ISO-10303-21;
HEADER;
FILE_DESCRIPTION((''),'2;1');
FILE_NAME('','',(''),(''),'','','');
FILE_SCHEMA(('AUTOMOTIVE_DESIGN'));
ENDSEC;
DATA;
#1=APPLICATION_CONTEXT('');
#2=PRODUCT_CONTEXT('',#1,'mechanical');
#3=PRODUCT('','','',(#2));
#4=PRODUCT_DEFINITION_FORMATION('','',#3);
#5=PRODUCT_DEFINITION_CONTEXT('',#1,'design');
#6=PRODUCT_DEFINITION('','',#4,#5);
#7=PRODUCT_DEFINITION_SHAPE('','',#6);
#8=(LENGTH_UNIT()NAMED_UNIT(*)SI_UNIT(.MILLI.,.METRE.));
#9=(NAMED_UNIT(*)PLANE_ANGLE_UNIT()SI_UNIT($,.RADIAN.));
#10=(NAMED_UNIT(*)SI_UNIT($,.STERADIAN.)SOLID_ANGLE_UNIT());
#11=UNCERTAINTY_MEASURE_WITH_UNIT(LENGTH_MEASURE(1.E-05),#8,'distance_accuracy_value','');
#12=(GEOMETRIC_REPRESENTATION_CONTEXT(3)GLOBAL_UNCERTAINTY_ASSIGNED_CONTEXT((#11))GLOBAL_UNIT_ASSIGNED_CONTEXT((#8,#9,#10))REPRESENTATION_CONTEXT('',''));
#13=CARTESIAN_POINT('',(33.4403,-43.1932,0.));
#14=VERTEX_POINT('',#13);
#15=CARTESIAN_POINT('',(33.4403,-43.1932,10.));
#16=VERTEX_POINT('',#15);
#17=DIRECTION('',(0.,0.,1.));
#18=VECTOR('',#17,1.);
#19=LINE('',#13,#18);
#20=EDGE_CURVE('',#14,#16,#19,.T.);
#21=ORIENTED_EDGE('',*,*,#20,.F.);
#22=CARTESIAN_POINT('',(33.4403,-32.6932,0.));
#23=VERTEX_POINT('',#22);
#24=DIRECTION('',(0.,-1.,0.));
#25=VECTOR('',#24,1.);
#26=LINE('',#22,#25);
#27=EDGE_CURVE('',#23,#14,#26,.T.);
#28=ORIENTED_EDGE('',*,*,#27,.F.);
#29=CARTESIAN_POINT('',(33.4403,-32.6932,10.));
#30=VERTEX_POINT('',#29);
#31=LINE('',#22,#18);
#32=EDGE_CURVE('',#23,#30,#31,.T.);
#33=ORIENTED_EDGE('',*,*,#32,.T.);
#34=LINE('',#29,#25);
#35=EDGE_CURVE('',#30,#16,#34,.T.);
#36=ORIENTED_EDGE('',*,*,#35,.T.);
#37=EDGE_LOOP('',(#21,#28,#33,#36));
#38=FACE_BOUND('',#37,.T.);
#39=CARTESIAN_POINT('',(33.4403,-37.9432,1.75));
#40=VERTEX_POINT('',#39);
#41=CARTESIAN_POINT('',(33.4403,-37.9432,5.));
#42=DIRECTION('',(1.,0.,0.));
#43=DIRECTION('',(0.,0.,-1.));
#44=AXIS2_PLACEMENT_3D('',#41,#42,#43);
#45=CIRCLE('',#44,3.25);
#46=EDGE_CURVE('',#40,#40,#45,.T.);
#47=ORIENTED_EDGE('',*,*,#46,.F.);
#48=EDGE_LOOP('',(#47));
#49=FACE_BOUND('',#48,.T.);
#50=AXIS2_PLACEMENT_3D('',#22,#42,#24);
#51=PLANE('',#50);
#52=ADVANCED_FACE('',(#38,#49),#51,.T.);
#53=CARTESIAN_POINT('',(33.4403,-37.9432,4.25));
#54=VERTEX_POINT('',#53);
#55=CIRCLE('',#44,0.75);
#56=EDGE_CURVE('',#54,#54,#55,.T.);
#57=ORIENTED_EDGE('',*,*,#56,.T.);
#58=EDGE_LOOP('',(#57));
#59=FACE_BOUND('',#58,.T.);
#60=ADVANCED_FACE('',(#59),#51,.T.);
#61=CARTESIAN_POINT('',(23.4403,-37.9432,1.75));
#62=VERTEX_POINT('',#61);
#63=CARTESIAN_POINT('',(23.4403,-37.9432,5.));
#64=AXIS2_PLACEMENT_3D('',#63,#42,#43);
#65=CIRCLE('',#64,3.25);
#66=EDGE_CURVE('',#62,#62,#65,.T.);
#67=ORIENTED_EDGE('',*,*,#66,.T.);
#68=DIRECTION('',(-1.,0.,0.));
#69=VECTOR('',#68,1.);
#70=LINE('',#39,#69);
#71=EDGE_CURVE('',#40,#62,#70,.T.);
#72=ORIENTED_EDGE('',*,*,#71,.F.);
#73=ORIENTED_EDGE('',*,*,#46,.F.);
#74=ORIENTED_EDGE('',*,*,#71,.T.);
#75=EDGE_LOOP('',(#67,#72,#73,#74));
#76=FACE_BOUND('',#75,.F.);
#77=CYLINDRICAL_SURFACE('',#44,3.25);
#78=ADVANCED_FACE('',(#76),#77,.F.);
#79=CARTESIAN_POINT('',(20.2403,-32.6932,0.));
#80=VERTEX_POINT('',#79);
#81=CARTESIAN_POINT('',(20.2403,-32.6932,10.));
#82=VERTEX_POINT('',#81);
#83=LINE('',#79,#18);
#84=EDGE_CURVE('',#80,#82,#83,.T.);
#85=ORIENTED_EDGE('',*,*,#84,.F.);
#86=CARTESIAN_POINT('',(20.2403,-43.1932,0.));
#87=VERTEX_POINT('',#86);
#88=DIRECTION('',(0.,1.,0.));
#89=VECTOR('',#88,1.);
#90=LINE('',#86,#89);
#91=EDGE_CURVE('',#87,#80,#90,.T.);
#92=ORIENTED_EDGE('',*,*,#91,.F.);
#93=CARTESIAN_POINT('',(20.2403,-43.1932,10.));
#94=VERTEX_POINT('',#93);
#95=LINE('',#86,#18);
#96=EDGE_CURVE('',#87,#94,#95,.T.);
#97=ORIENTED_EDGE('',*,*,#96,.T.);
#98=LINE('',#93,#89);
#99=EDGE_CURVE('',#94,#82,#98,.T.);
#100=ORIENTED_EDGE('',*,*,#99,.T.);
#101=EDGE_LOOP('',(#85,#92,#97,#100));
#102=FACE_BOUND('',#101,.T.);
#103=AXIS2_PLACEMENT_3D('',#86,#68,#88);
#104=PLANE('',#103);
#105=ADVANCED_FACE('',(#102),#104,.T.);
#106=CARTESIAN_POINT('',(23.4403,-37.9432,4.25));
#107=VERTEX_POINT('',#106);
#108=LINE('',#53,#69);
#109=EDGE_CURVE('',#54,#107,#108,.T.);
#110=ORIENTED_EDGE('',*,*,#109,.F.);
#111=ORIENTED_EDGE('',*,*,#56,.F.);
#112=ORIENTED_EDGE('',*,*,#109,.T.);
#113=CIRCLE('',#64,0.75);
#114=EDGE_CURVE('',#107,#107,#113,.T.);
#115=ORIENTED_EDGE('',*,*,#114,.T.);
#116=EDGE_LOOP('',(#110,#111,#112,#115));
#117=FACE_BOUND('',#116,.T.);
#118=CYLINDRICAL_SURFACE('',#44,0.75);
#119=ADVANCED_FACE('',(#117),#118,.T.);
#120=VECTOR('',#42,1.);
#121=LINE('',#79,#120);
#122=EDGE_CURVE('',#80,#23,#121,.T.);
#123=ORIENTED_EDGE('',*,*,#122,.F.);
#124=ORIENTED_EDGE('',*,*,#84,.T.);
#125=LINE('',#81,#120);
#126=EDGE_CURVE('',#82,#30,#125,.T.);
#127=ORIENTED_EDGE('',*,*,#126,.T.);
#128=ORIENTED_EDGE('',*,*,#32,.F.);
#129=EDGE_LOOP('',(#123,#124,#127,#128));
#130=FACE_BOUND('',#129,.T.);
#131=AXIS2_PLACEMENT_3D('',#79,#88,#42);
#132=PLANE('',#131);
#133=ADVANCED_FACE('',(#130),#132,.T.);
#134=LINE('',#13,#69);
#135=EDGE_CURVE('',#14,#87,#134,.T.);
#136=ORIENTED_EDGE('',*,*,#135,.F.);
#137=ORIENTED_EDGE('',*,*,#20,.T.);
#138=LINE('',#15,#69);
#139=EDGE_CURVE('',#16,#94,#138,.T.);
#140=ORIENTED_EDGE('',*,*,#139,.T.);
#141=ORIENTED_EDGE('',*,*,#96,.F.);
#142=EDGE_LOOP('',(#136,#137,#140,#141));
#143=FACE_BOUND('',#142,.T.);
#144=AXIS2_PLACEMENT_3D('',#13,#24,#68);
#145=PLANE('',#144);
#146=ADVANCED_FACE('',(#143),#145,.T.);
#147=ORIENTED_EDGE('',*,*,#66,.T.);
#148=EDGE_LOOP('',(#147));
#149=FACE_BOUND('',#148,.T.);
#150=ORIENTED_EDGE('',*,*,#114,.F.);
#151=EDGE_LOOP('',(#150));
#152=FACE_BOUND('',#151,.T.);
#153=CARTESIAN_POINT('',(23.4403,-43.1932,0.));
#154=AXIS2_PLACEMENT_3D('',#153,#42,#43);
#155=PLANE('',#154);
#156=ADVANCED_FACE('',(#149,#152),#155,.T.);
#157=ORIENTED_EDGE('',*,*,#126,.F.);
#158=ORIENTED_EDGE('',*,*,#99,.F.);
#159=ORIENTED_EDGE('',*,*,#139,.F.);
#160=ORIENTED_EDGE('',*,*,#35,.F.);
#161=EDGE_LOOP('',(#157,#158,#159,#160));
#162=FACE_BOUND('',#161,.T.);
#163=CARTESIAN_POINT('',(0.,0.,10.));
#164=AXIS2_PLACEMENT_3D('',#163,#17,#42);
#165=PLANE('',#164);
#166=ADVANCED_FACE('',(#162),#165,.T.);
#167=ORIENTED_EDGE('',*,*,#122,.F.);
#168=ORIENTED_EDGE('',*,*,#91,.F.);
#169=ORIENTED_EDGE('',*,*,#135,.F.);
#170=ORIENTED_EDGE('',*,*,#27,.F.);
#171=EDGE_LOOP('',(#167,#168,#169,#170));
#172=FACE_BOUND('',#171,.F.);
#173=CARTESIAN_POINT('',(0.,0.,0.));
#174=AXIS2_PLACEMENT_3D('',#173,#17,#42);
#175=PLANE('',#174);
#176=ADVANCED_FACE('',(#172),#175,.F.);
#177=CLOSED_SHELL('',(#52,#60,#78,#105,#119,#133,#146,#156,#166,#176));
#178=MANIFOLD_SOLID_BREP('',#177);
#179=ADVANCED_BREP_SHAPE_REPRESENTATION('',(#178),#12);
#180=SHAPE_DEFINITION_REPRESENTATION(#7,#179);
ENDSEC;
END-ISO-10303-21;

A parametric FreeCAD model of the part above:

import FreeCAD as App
import Part
import Sketcher
from FreeCAD import Vector

doc = App.newDocument("Part")
body = doc.addObject("PartDesign::Body", "Body")

sketch1 = doc.addObject("Sketcher::SketchObject", "Sketch")
body.addObject(sketch1)
sketch1.AttachmentSupport = (doc.XY_Plane, [""])
sketch1.MapMode = "FlatFace"
sketch1.addGeometry([
    Part.LineSegment(Vector(33, -33, 0), Vector(20, -33, 0)),
    Part.LineSegment(Vector(20, -33, 0), Vector(20, -43, 0)),
    Part.LineSegment(Vector(20, -43, 0), Vector(33, -43, 0)),
    Part.LineSegment(Vector(33, -43, 0), Vector(33, -33, 0)),
], False)
sketch1.addConstraint([
    Sketcher.Constraint("Coincident", 0, 2, 1, 1),
    Sketcher.Constraint("Coincident", 1, 2, 2, 1),
    Sketcher.Constraint("Coincident", 2, 2, 3, 1),
    Sketcher.Constraint("Coincident", 3, 2, 0, 1),
    Sketcher.Constraint("Horizontal", 0),
    Sketcher.Constraint("Vertical", 1),
    Sketcher.Constraint("Horizontal", 2),
    Sketcher.Constraint("Vertical", 3),
    Sketcher.Constraint("DistanceX", 0, 2, 0, 1, 13.2),
    Sketcher.Constraint("DistanceY", 1, 2, 1, 1, 10.5),
    Sketcher.Constraint("DistanceX", -1, 1, 0, 2, 20.2403),
    Sketcher.Constraint("DistanceY", 0, 2, -1, 1, 32.6932),
])
pad1 = doc.addObject("PartDesign::Pad", "Pad")
body.addObject(pad1)
pad1.Profile = sketch1
pad1.Length = 10

sketch2 = doc.addObject("Sketcher::SketchObject", "Sketch001")
body.addObject(sketch2)
sketch2.AttachmentSupport = (doc.YZ_Plane, [""])
sketch2.MapMode = "FlatFace"
sketch2.AttachmentOffset = App.Placement(Vector(0, 0, 33.4403), App.Rotation())
sketch2.addGeometry([
    Part.Circle(Vector(-37.9, 5, 0), Vector(0, 0, 1), 3.2),
    Part.Circle(Vector(-37.9, 5, 0), Vector(0, 0, 1), 0.8),
], False)
sketch2.addConstraint([
    Sketcher.Constraint("Coincident", 1, 3, 0, 3),
    Sketcher.Constraint("Diameter", 0, 6.5),
    Sketcher.Constraint("Diameter", 1, 1.5),
    Sketcher.Constraint("DistanceY", -1, 1, 0, 3, 5.0),
    Sketcher.Constraint("DistanceX", 0, 3, -1, 1, 37.9432),
])
pocket1 = doc.addObject("PartDesign::Pocket", "Pocket")
body.addObject(pocket1)
pocket1.Profile = sketch2
pocket1.Length = 10

doc.recompute()
